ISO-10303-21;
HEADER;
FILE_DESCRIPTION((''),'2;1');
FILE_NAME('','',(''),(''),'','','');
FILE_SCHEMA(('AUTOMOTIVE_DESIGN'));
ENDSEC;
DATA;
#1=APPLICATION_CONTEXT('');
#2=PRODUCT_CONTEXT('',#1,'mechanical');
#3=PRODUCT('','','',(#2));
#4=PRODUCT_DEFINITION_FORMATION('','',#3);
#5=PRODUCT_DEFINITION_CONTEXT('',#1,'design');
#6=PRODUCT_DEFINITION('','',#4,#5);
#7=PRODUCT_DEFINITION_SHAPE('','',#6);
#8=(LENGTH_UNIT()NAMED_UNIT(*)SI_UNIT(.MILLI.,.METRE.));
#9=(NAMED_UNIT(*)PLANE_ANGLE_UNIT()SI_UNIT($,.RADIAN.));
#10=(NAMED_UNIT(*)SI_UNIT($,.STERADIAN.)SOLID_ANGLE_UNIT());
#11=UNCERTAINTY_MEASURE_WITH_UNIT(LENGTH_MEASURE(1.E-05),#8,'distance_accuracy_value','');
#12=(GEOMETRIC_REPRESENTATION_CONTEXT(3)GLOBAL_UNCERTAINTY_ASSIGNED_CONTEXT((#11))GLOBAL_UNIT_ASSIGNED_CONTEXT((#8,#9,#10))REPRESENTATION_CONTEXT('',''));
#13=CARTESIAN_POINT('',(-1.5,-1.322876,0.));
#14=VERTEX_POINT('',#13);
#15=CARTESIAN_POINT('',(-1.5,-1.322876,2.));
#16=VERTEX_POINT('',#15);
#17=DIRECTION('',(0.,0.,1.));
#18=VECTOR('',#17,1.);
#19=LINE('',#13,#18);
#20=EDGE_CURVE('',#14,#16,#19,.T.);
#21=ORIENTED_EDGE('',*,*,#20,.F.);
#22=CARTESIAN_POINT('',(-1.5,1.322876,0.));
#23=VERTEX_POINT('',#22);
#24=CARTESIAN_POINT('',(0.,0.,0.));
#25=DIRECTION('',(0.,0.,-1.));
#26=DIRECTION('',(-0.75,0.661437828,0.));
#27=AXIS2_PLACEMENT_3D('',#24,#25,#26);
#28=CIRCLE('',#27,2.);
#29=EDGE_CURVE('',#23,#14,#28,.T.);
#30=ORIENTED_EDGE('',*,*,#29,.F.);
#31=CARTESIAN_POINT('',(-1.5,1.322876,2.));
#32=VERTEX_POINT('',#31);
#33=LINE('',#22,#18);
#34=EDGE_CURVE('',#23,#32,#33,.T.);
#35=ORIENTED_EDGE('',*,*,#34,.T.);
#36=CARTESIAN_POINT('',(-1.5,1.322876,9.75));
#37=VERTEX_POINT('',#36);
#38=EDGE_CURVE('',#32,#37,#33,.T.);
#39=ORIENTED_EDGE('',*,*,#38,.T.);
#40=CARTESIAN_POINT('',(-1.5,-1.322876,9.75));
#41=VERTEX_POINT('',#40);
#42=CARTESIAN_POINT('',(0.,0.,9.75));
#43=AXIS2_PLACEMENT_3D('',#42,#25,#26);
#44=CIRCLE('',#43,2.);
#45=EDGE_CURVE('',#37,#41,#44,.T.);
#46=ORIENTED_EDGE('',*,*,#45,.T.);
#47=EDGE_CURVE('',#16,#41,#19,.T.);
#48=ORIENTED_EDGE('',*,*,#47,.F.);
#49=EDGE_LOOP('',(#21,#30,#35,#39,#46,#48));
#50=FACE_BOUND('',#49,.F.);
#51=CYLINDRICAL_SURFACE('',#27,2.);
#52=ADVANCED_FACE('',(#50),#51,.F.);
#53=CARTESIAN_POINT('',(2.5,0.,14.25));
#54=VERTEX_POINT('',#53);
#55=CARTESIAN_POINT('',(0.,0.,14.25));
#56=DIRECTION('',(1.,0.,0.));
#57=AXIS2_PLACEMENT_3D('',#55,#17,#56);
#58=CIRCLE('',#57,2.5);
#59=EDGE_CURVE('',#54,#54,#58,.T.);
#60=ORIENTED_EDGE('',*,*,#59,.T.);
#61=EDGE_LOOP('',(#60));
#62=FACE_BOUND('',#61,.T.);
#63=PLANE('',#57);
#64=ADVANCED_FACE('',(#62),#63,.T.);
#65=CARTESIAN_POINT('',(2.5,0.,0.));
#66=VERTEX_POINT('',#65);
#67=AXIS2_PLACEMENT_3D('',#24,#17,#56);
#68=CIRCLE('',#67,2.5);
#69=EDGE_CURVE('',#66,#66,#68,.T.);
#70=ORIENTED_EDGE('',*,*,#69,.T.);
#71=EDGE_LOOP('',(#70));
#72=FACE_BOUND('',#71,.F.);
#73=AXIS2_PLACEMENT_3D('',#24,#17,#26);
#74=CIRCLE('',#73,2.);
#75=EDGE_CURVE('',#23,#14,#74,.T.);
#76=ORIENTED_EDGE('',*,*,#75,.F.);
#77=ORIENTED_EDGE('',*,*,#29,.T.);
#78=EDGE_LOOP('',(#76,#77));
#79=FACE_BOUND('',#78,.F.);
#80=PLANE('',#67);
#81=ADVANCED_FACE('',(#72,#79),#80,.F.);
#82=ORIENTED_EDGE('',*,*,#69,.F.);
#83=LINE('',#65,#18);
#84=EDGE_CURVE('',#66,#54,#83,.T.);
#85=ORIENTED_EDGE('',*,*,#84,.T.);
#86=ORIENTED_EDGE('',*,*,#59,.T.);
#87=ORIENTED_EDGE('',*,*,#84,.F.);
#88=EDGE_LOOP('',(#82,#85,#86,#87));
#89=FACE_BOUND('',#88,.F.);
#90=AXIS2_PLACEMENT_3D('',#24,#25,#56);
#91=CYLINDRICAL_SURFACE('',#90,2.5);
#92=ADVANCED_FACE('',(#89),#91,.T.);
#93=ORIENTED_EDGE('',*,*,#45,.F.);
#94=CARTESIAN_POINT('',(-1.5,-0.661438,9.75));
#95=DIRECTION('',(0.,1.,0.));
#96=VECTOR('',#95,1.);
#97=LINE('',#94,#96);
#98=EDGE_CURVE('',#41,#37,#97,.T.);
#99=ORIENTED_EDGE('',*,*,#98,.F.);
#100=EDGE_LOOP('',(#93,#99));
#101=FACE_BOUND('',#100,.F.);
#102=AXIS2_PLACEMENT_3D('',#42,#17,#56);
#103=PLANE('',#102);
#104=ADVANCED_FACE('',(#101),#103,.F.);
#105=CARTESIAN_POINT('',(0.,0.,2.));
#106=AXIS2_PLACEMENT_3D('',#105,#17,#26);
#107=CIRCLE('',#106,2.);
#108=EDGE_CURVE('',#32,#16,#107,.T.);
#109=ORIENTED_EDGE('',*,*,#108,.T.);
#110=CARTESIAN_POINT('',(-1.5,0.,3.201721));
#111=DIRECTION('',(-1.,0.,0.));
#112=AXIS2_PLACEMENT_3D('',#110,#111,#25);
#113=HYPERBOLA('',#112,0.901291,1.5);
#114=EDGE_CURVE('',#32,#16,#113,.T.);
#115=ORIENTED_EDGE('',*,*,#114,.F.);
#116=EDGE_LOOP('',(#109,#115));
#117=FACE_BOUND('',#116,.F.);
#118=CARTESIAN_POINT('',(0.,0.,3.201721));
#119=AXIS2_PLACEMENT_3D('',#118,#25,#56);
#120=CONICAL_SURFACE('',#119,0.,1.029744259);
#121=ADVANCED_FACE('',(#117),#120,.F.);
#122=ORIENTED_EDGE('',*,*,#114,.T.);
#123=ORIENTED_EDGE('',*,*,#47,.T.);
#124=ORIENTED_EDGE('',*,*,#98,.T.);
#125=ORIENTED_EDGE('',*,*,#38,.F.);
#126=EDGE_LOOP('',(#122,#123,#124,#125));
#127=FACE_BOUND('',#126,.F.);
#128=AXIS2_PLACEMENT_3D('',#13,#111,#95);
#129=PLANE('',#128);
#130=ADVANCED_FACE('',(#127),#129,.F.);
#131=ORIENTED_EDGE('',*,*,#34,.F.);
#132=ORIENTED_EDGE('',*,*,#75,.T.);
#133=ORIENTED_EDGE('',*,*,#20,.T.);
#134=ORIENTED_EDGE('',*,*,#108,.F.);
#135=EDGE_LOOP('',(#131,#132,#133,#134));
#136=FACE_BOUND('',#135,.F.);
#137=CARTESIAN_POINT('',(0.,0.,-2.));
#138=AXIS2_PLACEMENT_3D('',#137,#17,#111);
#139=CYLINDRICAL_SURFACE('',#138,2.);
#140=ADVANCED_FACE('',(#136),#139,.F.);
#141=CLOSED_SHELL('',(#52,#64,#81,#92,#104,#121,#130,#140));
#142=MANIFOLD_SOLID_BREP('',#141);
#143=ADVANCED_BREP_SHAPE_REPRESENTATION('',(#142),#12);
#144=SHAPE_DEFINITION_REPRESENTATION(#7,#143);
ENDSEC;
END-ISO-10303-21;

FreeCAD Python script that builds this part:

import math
import FreeCAD as App
import Part
import Sketcher

V = App.Vector
Q = App.Units.Quantity

doc = App.newDocument("Part")
params = doc.addObject("Spreadsheet::Sheet", "Params")
for row, (alias, value) in enumerate([
    ("sketch1_diameter", "5 mm"),
    ("sketch1_radius", "2 mm"),
    ("pad1_length", "14.25 mm"),
    ("sketch2_diameter", "4 mm"),
    ("hole_diameter", "4 mm"),
    ("hole_depth", "2 mm"),
    ("pad2_length", "4.5 mm"),
], start=1):
    params.set(f"A{row}", alias)
    params.set(f"B{row}", "=" + value)
    params.setAlias(f"B{row}", alias)

body = doc.addObject("PartDesign::Body", "Body")

# Sketch on XY plane
sketch1 = body.newObject("Sketcher::SketchObject", "Sketch")
sketch1.AttachmentSupport = (doc.getObject("XY_Plane"), [""])
sketch1.MapMode = "FlatFace"
sketch1.addGeometry(Part.Circle(V(0, 0, 0), V(0, 0, 1), 2.5), False)
sketch1.addGeometry(Part.LineSegment(V(-1.5, -1.3, 0), V(-1.5, 1.3, 0)), False)
sketch1.addGeometry(Part.ArcOfCircle(Part.Circle(V(0, 0, 0), V(0, 0, 1), 2), math.radians(-139), math.radians(139)), False)
sketch1.addConstraint(Sketcher.Constraint("Coincident", 1, 1, 2, 1))
sketch1.addConstraint(Sketcher.Constraint("Coincident", 2, 2, 1, 2))
sketch1.addConstraint(Sketcher.Constraint("Vertical", 1))
sketch1.addConstraint(Sketcher.Constraint("Coincident", 0, 3, -1, 1))
sketch1.addConstraint(Sketcher.Constraint("Coincident", 2, 3, -1, 1))
sketch1.addConstraint(Sketcher.Constraint("Diameter", 0, Q("5 mm")))
sketch1.addConstraint(Sketcher.Constraint("Radius", 2, Q("2 mm")))
sketch1.addConstraint(Sketcher.Constraint("DistanceX", 1, 1, -1, 1, Q("1.5 mm")))
sketch1.setExpression("Constraints[5]", "Params.sketch1_diameter")
sketch1.setExpression("Constraints[6]", "Params.sketch1_radius")
pad1 = body.newObject("PartDesign::Pad", "Pad")
pad1.Profile = sketch1
pad1.setExpression("Length", "Params.pad1_length")

# Sketch on XY plane
sketch2 = body.newObject("Sketcher::SketchObject", "Sketch001")
sketch2.AttachmentSupport = (doc.getObject("XY_Plane"), [""])
sketch2.MapMode = "FlatFace"
sketch2.addGeometry(Part.Circle(V(0, 0, 0), V(0, 0, 1), 2), False)
sketch2.addConstraint(Sketcher.Constraint("Coincident", 0, 3, -1, 1))
sketch2.addConstraint(Sketcher.Constraint("Diameter", 0, Q("4 mm")))
sketch2.setExpression("Constraints[1]", "Params.sketch2_diameter")
doc.recompute()
hole = body.newObject("PartDesign::Hole", "Hole")
hole.Profile = sketch2
hole.ThreadType = "None"
hole.setExpression("Diameter", "Params.hole_diameter")
hole.DepthType = "Dimension"
hole.setExpression("Depth", "Params.hole_depth")
hole.DrillPoint = "Angled"
hole.DrillPointAngle = 118
hole.Reversed = True

# Sketch on XY plane
sketch3 = body.newObject("Sketcher::SketchObject", "Sketch002")
sketch3.AttachmentSupport = (doc.getObject("XY_Plane"), [""])
sketch3.MapMode = "FlatFace"
sketch3.AttachmentOffset = App.Placement(V(0, 0, 14.25), App.Rotation())
sketch3.addGeometry(Part.Circle(V(0, 0, 0), V(0, 0, 1), 2.2), False)
sketch3.addConstraint(Sketcher.Constraint("Coincident", 0, 3, -1, 1))
sketch3.addConstraint(Sketcher.Constraint("Diameter", 0, Q("4.301174 mm")))
pad2 = body.newObject("PartDesign::Pad", "Pad001")
pad2.Profile = sketch3
pad2.setExpression("Length", "Params.pad2_length")
pad2.Reversed = True

doc.recompute()
